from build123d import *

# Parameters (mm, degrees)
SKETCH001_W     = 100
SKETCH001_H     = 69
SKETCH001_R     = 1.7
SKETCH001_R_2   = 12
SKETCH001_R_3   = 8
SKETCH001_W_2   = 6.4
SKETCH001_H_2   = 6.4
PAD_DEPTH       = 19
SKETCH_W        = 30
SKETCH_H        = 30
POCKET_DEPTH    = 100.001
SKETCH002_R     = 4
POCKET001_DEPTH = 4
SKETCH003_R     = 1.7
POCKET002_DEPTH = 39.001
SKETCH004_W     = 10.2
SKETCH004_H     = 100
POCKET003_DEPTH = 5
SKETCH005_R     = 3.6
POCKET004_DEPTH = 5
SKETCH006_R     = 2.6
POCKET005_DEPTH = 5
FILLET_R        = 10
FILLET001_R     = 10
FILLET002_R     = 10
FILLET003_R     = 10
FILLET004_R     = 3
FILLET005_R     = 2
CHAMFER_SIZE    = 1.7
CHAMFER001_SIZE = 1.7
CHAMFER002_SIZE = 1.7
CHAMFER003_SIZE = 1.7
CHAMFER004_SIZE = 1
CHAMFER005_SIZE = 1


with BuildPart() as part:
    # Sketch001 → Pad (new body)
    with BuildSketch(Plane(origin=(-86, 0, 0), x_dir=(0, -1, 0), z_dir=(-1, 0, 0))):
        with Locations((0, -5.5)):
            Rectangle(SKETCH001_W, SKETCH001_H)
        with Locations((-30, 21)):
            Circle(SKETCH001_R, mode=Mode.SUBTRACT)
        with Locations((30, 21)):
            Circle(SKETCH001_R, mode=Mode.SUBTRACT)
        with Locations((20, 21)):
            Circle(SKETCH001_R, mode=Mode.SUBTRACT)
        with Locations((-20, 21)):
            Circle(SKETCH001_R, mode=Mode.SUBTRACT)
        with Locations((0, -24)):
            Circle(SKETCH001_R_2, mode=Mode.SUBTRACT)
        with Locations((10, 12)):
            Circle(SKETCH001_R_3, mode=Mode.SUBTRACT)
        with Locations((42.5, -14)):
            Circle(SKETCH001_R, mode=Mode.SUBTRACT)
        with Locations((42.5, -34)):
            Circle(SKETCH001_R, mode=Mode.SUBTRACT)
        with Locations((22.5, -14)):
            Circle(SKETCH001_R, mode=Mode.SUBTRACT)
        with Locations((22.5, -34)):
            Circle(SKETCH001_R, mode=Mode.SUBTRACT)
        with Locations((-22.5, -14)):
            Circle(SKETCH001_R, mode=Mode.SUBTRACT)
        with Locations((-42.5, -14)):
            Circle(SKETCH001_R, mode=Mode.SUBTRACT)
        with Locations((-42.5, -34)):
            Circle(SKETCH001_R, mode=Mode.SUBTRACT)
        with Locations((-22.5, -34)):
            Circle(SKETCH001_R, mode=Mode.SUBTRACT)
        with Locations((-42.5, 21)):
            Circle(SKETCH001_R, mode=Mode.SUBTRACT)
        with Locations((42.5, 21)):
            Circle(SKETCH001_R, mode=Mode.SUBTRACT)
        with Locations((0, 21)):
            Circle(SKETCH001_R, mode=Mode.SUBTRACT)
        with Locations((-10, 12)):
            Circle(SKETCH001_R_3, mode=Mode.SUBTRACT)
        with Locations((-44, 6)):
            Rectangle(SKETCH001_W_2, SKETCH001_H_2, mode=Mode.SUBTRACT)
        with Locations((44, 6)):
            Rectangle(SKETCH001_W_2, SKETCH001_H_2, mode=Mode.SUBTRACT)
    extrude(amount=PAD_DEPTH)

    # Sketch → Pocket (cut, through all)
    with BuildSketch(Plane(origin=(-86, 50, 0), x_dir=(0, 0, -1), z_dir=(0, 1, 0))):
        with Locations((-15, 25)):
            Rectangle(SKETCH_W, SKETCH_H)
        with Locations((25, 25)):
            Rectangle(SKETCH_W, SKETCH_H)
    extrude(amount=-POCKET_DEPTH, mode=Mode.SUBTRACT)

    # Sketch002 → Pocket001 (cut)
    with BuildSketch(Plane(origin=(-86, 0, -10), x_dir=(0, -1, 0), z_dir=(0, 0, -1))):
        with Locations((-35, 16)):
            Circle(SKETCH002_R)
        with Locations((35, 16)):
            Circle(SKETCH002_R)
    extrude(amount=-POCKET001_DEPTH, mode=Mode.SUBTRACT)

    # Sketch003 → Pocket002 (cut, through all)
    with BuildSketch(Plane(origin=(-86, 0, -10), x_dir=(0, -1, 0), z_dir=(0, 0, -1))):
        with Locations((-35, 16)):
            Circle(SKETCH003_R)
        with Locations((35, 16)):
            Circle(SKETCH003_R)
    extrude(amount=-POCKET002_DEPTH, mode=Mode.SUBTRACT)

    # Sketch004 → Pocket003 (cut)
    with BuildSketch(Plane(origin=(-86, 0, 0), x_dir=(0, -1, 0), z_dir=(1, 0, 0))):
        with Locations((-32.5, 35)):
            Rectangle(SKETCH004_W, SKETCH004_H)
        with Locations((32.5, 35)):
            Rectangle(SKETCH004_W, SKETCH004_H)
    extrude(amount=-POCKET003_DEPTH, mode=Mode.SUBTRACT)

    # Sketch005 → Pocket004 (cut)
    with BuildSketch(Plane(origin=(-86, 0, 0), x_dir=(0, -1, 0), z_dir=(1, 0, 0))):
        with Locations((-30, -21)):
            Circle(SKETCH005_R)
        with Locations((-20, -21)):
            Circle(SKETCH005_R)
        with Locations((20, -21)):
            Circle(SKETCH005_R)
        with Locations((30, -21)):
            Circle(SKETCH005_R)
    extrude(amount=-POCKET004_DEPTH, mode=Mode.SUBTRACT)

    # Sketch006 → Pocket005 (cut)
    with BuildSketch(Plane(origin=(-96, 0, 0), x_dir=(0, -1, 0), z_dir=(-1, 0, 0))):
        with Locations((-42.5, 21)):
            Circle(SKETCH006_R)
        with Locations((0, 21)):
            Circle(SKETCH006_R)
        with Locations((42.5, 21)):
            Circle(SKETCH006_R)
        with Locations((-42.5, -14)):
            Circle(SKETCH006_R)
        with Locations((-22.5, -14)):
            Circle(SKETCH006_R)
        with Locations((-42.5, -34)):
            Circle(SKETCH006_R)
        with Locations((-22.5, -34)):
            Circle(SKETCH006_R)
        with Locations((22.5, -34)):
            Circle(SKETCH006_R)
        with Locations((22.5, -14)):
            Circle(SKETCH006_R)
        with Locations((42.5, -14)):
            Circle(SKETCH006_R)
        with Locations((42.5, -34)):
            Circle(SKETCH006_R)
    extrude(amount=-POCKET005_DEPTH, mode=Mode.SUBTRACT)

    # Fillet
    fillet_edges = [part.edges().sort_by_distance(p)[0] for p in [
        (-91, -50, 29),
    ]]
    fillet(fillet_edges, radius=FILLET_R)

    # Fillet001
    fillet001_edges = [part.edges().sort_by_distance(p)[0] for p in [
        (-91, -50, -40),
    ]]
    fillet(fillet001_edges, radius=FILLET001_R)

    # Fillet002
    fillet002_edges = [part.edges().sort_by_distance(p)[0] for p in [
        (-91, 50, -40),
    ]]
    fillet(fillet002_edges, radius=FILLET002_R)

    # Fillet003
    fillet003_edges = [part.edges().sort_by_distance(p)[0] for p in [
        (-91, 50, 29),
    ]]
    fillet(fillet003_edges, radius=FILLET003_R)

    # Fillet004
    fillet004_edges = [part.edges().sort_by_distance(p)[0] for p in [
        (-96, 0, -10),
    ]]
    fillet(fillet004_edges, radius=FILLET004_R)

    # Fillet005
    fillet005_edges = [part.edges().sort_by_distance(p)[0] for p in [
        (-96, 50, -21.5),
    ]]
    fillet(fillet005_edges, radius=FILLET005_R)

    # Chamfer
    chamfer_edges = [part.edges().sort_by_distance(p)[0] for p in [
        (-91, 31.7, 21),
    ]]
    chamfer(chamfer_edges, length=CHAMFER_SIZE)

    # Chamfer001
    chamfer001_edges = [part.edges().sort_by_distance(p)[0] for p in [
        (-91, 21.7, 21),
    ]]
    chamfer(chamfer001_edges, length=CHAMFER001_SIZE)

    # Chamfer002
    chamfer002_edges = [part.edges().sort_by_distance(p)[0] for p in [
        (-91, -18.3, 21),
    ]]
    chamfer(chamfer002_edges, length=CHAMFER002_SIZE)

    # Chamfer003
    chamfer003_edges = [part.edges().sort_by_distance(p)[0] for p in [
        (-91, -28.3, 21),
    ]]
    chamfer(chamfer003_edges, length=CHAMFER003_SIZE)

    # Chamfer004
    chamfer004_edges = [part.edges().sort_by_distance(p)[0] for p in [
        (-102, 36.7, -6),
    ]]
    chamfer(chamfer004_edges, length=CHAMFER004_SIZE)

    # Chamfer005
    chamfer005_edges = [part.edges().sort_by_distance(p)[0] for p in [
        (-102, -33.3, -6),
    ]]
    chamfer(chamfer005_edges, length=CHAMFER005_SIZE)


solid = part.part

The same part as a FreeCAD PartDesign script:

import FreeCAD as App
import Part
import Sketcher
from FreeCAD import Vector
Q = App.Units.Quantity


def edges_at(feature, points):
    """Names of the edges that pass closest to the given points."""
    edges = feature.Shape.Edges
    near = lambda p: min(range(len(edges)), key=lambda i: edges[i].distToShape(Part.Vertex(*p))[0])
    return sorted({f"Edge{near(p) + 1}" for p in points})

doc = App.newDocument("Part")
params = doc.addObject("Spreadsheet::Sheet", "Params")
for row, (alias, value) in enumerate([
    ("sketch1_diameter", "24 mm"),
    ("sketch1_diameter2", "16 mm"),
    ("sketch1_diameter3", "3.4 mm"),
    ("sketch1_width", "100 mm"),
    ("sketch1_height", "69 mm"),
    ("pad1_length", "19 mm"),
    ("sketch2_width", "30 mm"),
    ("sketch3_diameter", "8 mm"),
    ("pocket2_length", "4 mm"),
    ("sketch4_diameter", "3.4 mm"),
    ("sketch5_height", "100 mm"),
    ("sketch5_width", "10.2 mm"),
    ("pocket4_length", "5 mm"),
    ("sketch6_diameter", "7.2 mm"),
    ("pocket5_length", "5 mm"),
    ("sketch7_diameter", "5.2 mm"),
    ("pocket6_length", "5 mm"),
    ("fillet_radius", "10 mm"),
    ("fillet2_radius", "10 mm"),
    ("fillet3_radius", "10 mm"),
    ("fillet4_radius", "10 mm"),
    ("fillet5_radius", "3 mm"),
    ("fillet6_radius", "2 mm"),
    ("chamfer_size", "1.7 mm"),
    ("chamfer2_size", "1.7 mm"),
    ("chamfer3_size", "1.7 mm"),
    ("chamfer4_size", "1.7 mm"),
    ("chamfer5_size", "1 mm"),
    ("chamfer6_size", "1 mm"),
], start=1):
    params.set(f"A{row}", alias)
    params.set(f"B{row}", "=" + value)
    params.setAlias(f"B{row}", alias)

body = doc.addObject("PartDesign::Body", "Body")

sketch1 = body.newObject("Sketcher::SketchObject", "Sketch")
sketch1.AttachmentSupport = (doc.getObject("YZ_Plane"), [""])
sketch1.MapMode = "FlatFace"
sketch1.AttachmentOffset = App.Placement(Vector(0, 0, -86), App.Rotation())
sketch1.addGeometry([
    Part.LineSegment(Vector(50, 29, 0), Vector(50, -40, 0)),
    Part.LineSegment(Vector(50, -40, 0), Vector(-50, -40, 0)),
    Part.LineSegment(Vector(-50, -40, 0), Vector(-50, 29, 0)),
    Part.LineSegment(Vector(-50, 29, 0), Vector(50, 29, 0)),
    Part.Circle(Vector(42.5, -34, 0), Vector(0, 0, 1), 1.7),
    Part.Circle(Vector(22.5, -34, 0), Vector(0, 0, 1), 1.7),
    Part.Circle(Vector(42.5, -14, 0), Vector(0, 0, 1), 1.7),
    Part.Circle(Vector(22.5, -14, 0), Vector(0, 0, 1), 1.7),
    Part.Circle(Vector(-22.5, -34, 0), Vector(0, 0, 1), 1.7),
    Part.Circle(Vector(0, -24, 0), Vector(0, 0, 1), 12),
    Part.Circle(Vector(-42.5, -34, 0), Vector(0, 0, 1), 1.7),
    Part.Circle(Vector(-22.5, -14, 0), Vector(0, 0, 1), 1.7),
    Part.Circle(Vector(-42.5, -14, 0), Vector(0, 0, 1), 1.7),
    Part.LineSegment(Vector(40.8, 2.8, 0), Vector(47.2, 2.8, 0)),
    Part.LineSegment(Vector(47.2, 2.8, 0), Vector(47.2, 9.2, 0)),
    Part.LineSegment(Vector(47.2, 9.2, 0), Vector(40.8, 9.2, 0)),
    Part.LineSegment(Vector(40.8, 9.2, 0), Vector(40.8, 2.8, 0)),
    Part.Circle(Vector(42.5, 21, 0), Vector(0, 0, 1), 1.7),
    Part.Circle(Vector(30, 21, 0), Vector(0, 0, 1), 1.7),
    Part.Circle(Vector(10, 12, 0), Vector(0, 0, 1), 8),
    Part.Circle(Vector(20, 21, 0), Vector(0, 0, 1), 1.7),
    Part.LineSegment(Vector(-47.2, 2.8, 0), Vector(-40.8, 2.8, 0)),
    Part.LineSegment(Vector(-40.8, 2.8, 0), Vector(-40.8, 9.2, 0)),
    Part.LineSegment(Vector(-40.8, 9.2, 0), Vector(-47.2, 9.2, 0)),
    Part.LineSegment(Vector(-47.2, 9.2, 0), Vector(-47.2, 2.8, 0)),
    Part.Circle(Vector(-10, 12, 0), Vector(0, 0, 1), 8),
    Part.Circle(Vector(0, 21, 0), Vector(0, 0, 1), 1.7),
    Part.Circle(Vector(-20, 21, 0), Vector(0, 0, 1), 1.7),
    Part.Circle(Vector(-30, 21, 0), Vector(0, 0, 1), 1.7),
    Part.Circle(Vector(-42.5, 21, 0), Vector(0, 0, 1), 1.7),
], False)
sketch1.addConstraint([
    Sketcher.Constraint("Coincident", 0, 2, 1, 1),
    Sketcher.Constraint("Coincident", 1, 2, 2, 1),
    Sketcher.Constraint("Coincident", 2, 2, 3, 1),
    Sketcher.Constraint("Coincident", 3, 2, 0, 1),
    Sketcher.Constraint("Coincident", 13, 2, 14, 1),
    Sketcher.Constraint("Coincident", 14, 2, 15, 1),
    Sketcher.Constraint("Coincident", 15, 2, 16, 1),
    Sketcher.Constraint("Coincident", 16, 2, 13, 1),
    Sketcher.Constraint("Coincident", 21, 2, 22, 1),
    Sketcher.Constraint("Coincident", 22, 2, 23, 1),
    Sketcher.Constraint("Coincident", 23, 2, 24, 1),
    Sketcher.Constraint("Coincident", 24, 2, 21, 1),
    Sketcher.Constraint("Vertical", 0),
    Sketcher.Constraint("Horizontal", 1),
    Sketcher.Constraint("Vertical", 2),
    Sketcher.Constraint("Horizontal", 3),
    Sketcher.Constraint("Horizontal", 13),
    Sketcher.Constraint("Vertical", 14),
    Sketcher.Constraint("Horizontal", 15),
    Sketcher.Constraint("Vertical", 16),
    Sketcher.Constraint("Horizontal", 21),
    Sketcher.Constraint("Vertical", 22),
    Sketcher.Constraint("Horizontal", 23),
    Sketcher.Constraint("Vertical", 24),
    Sketcher.Constraint("Equal", 4, 5),
    Sketcher.Constraint("Equal", 5, 6),
    Sketcher.Constraint("Equal", 6, 7),
    Sketcher.Constraint("Equal", 7, 8),
    Sketcher.Constraint("Equal", 8, 10),
    Sketcher.Constraint("Equal", 10, 11),
    Sketcher.Constraint("Equal", 11, 12),
    Sketcher.Constraint("Equal", 12, 17),
    Sketcher.Constraint("Equal", 17, 18),
    Sketcher.Constraint("Equal", 18, 20),
    Sketcher.Constraint("Equal", 19, 25),
    Sketcher.Constraint("Equal", 20, 26),
    Sketcher.Constraint("Equal", 26, 27),
    Sketcher.Constraint("Equal", 27, 28),
    Sketcher.Constraint("Equal", 28, 29),
    Sketcher.Constraint("Symmetric", 5, 3, 8, 3, -2),
    Sketcher.Constraint("Symmetric", 4, 3, 10, 3, -2),
    Sketcher.Constraint("Symmetric", 7, 3, 11, 3, -2),
    Sketcher.Constraint("Symmetric", 6, 3, 12, 3, -2),
    Sketcher.Constraint("Symmetric", 19, 3, 25, 3, -2),
    Sketcher.Constraint("Symmetric", 20, 3, 27, 3, -2),
    Sketcher.Constraint("Symmetric", 18, 3, 28, 3, -2),
    Sketcher.Constraint("Symmetric", 17, 3, 29, 3, -2),
    Sketcher.Constraint("Symmetric", 16, 2, 21, 2, -2),
    Sketcher.Constraint("Symmetric", 14, 2, 23, 2, -2),
    Sketcher.Constraint("PointOnObject", 9, 3, -2),
    Sketcher.Constraint("PointOnObject", 26, 3, -2),
    Sketcher.Constraint("Horizontal", 4, 3, 5, 3),
    Sketcher.Constraint("Horizontal", 6, 3, 7, 3),
    Sketcher.Constraint("Horizontal", 17, 3, 18, 3),
    Sketcher.Constraint("Horizontal", 18, 3, 20, 3),
    Sketcher.Constraint("Horizontal", 20, 3, 26, 3),
    Sketcher.Constraint("Vertical", 4, 3, 6, 3),
    Sketcher.Constraint("Vertical", 5, 3, 7, 3),
    Sketcher.Constraint("Vertical", 6, 3, 17, 3),
    Sketcher.Constraint("Equal", 23, 14),
    Sketcher.Constraint("Diameter", 9, Q("24 mm")),
    Sketcher.Constraint("Diameter", 19, Q("16 mm")),
    Sketcher.Constraint("Diameter", 4, Q("3.4 mm")),
    Sketcher.Constraint("DistanceX", 1, 2, 1, 1, Q("100 mm")),
    Sketcher.Constraint("DistanceY", 0, 2, 0, 1, Q("69 mm")),
    Sketcher.Constraint("DistanceX", 13, 1, 13, 2, Q("6.4 mm")),
    Sketcher.Constraint("DistanceY", 4, 3, -1, 1, Q("34 mm")),
    Sketcher.Constraint("DistanceY", 6, 3, -1, 1, Q("14 mm")),
    Sketcher.Constraint("DistanceY", 9, 3, -1, 1, Q("24 mm")),
    Sketcher.Constraint("DistanceY", -1, 1, 17, 3, Q("21 mm")),
    Sketcher.Constraint("DistanceX", -1, 1, 18, 3, Q("30 mm")),
    Sketcher.Constraint("DistanceX", -1, 1, 19, 3, Q("10 mm")),
    Sketcher.Constraint("DistanceY", -1, 1, 19, 3, Q("12 mm")),
    Sketcher.Constraint("DistanceX", -1, 1, 20, 3, Q("20 mm")),
    Sketcher.Constraint("DistanceX", -1, 1, 0, 2, Q("50 mm")),
    Sketcher.Constraint("DistanceY", 0, 2, -1, 1, Q("40 mm")),
    Sketcher.Constraint("DistanceX", 5, 3, 4, 3, Q("20 mm")),
    Sketcher.Constraint("DistanceX", 8, 3, 5, 3, Q("45 mm")),
    Sketcher.Constraint("DistanceX", -1, 1, 13, 2, Q("47.2 mm")),
    Sketcher.Constraint("DistanceY", -1, 1, 13, 2, Q("2.8 mm")),
])
sketch1.setExpression("Constraints[60]", "Params.sketch1_diameter")
sketch1.setExpression("Constraints[61]", "Params.sketch1_diameter2")
sketch1.setExpression("Constraints[62]", "Params.sketch1_diameter3")
sketch1.setExpression("Constraints[63]", "Params.sketch1_width")
sketch1.setExpression("Constraints[64]", "Params.sketch1_height")
pad1 = body.newObject("PartDesign::Pad", "Pad")
pad1.Profile = sketch1
pad1.setExpression("Length", "Params.pad1_length")
pad1.Reversed = True

sketch2 = body.newObject("Sketcher::SketchObject", "Sketch001")
sketch2.AttachmentSupport = (doc.getObject("XZ_Plane"), [""])
sketch2.MapMode = "FlatFace"
sketch2.AttachmentOffset = App.Placement(Vector(0, 0, -50), App.Rotation())
sketch2.addGeometry([
    Part.LineSegment(Vector(-126, 30, 0), Vector(-96, 30, 0)),
    Part.LineSegment(Vector(-96, 30, 0), Vector(-96, 0, 0)),
    Part.LineSegment(Vector(-96, 0, 0), Vector(-126, 0, 0)),
    Part.LineSegment(Vector(-126, 0, 0), Vector(-126, 30, 0)),
    Part.LineSegment(Vector(-126, -10, 0), Vector(-96, -10, 0)),
    Part.LineSegment(Vector(-96, -10, 0), Vector(-96, -40, 0)),
    Part.LineSegment(Vector(-96, -40, 0), Vector(-126, -40, 0)),
    Part.LineSegment(Vector(-126, -40, 0), Vector(-126, -10, 0)),
], False)
sketch2.addConstraint([
    Sketcher.Constraint("Coincident", 0, 2, 1, 1),
    Sketcher.Constraint("Coincident", 1, 2, 2, 1),
    Sketcher.Constraint("Coincident", 2, 2, 3, 1),
    Sketcher.Constraint("Coincident", 3, 2, 0, 1),
    Sketcher.Constraint("Coincident", 4, 2, 5, 1),
    Sketcher.Constraint("Coincident", 5, 2, 6, 1),
    Sketcher.Constraint("Coincident", 6, 2, 7, 1),
    Sketcher.Constraint("Coincident", 7, 2, 4, 1),
    Sketcher.Constraint("Horizontal", 0),
    Sketcher.Constraint("Vertical", 1),
    Sketcher.Constraint("Horizontal", 2),
    Sketcher.Constraint("Vertical", 3),
    Sketcher.Constraint("Horizontal", 4),
    Sketcher.Constraint("Vertical", 5),
    Sketcher.Constraint("Horizontal", 6),
    Sketcher.Constraint("Vertical", 7),
    Sketcher.Constraint("PointOnObject", 1, 2, -1),
    Sketcher.Constraint("Vertical", 1, 2, 4, 2),
    Sketcher.Constraint("Vertical", 3, 2, 6, 2),
    Sketcher.Constraint("Equal", 6, 1),
    Sketcher.Constraint("Equal", 3, 5),
    Sketcher.Constraint("DistanceX", 0, 1, 0, 2, Q("30 mm")),
    Sketcher.Constraint("DistanceX", 0, 2, -1, 1, Q("96 mm")),
    Sketcher.Constraint("DistanceY", 4, 2, -1, 1, Q("10 mm")),
])
sketch2.setExpression("Constraints[21]", "Params.sketch2_width")
pocket1 = body.newObject("PartDesign::Pocket", "Pocket")
pocket1.Profile = sketch2
pocket1.Type = "ThroughAll"
pocket1.Reversed = True

sketch3 = body.newObject("Sketcher::SketchObject", "Sketch002")
sketch3.AttachmentSupport = (doc.getObject("XY_Plane"), [""])
sketch3.MapMode = "FlatFace"
sketch3.AttachmentOffset = App.Placement(Vector(0, 0, -10), App.Rotation())
sketch3.addGeometry([
    Part.Circle(Vector(-102, 35, 0), Vector(0, 0, 1), 4),
    Part.Circle(Vector(-102, -35, 0), Vector(0, 0, 1), 4),
], False)
sketch3.addConstraint([
    Sketcher.Constraint("Equal", 0, 1),
    Sketcher.Constraint("Symmetric", 0, 3, 1, 3, -1),
    Sketcher.Constraint("Diameter", 0, Q("8 mm")),
    Sketcher.Constraint("DistanceX", 0, 3, -1, 1, Q("102 mm")),
    Sketcher.Constraint("DistanceY", -1, 1, 0, 3, Q("35 mm")),
])
sketch3.setExpression("Constraints[2]", "Params.sketch3_diameter")
pocket2 = body.newObject("PartDesign::Pocket", "Pocket001")
pocket2.Profile = sketch3
pocket2.setExpression("Length", "Params.pocket2_length")
pocket2.Reversed = True

sketch4 = body.newObject("Sketcher::SketchObject", "Sketch003")
sketch4.AttachmentSupport = (doc.getObject("XY_Plane"), [""])
sketch4.MapMode = "FlatFace"
sketch4.AttachmentOffset = App.Placement(Vector(0, 0, -10), App.Rotation())
sketch4.addGeometry([
    Part.Circle(Vector(-102, 35, 0), Vector(0, 0, 1), 1.7),
    Part.Circle(Vector(-102, -35, 0), Vector(0, 0, 1), 1.7),
], False)
sketch4.addConstraint([
    Sketcher.Constraint("Equal", 0, 1),
    Sketcher.Constraint("Symmetric", 0, 3, 1, 3, -1),
    Sketcher.Constraint("Diameter", 0, Q("3.4 mm")),
    Sketcher.Constraint("DistanceX", 0, 3, -1, 1, Q("102 mm")),
    Sketcher.Constraint("DistanceY", -1, 1, 0, 3, Q("35 mm")),
])
sketch4.setExpression("Constraints[2]", "Params.sketch4_diameter")
pocket3 = body.newObject("PartDesign::Pocket", "Pocket002")
pocket3.Profile = sketch4
pocket3.Type = "ThroughAll"
pocket3.Reversed = True

sketch5 = body.newObject("Sketcher::SketchObject", "Sketch004")
sketch5.AttachmentSupport = (doc.getObject("YZ_Plane"), [""])
sketch5.MapMode = "FlatFace"
sketch5.AttachmentOffset = App.Placement(Vector(0, 0, -86), App.Rotation())
sketch5.addGeometry([
    Part.LineSegment(Vector(38, -85, 0), Vector(38, 15, 0)),
    Part.LineSegment(Vector(38, 15, 0), Vector(27, 15, 0)),
    Part.LineSegment(Vector(27, 15, 0), Vector(27, -85, 0)),
    Part.LineSegment(Vector(27, -85, 0), Vector(38, -85, 0)),
    Part.LineSegment(Vector(-27, -85, 0), Vector(-27, 15, 0)),
    Part.LineSegment(Vector(-27, 15, 0), Vector(-38, 15, 0)),
    Part.LineSegment(Vector(-38, 15, 0), Vector(-38, -85, 0)),
    Part.LineSegment(Vector(-38, -85, 0), Vector(-27, -85, 0)),
], False)
sketch5.addConstraint([
    Sketcher.Constraint("Coincident", 0, 2, 1, 1),
    Sketcher.Constraint("Coincident", 1, 2, 2, 1),
    Sketcher.Constraint("Coincident", 2, 2, 3, 1),
    Sketcher.Constraint("Coincident", 3, 2, 0, 1),
    Sketcher.Constraint("Coincident", 4, 2, 5, 1),
    Sketcher.Constraint("Coincident", 5, 2, 6, 1),
    Sketcher.Constraint("Coincident", 6, 2, 7, 1),
    Sketcher.Constraint("Coincident", 7, 2, 4, 1),
    Sketcher.Constraint("Vertical", 0),
    Sketcher.Constraint("Horizontal", 1),
    Sketcher.Constraint("Vertical", 2),
    Sketcher.Constraint("Horizontal", 3),
    Sketcher.Constraint("Vertical", 4),
    Sketcher.Constraint("Horizontal", 5),
    Sketcher.Constraint("Vertical", 6),
    Sketcher.Constraint("Horizontal", 7),
    Sketcher.Constraint("Symmetric", 1, 2, 4, 2, -2),
    Sketcher.Constraint("Symmetric", 3, 2, 6, 2, -2),
    Sketcher.Constraint("DistanceY", 0, 1, 0, 2, Q("100 mm")),
    Sketcher.Constraint("DistanceX", 1, 2, 1, 1, Q("10.2 mm")),
    Sketcher.Constraint("DistanceY", -1, 1, 0, 2, Q("15 mm")),
    Sketcher.Constraint("DistanceX", 4, 2, 0, 2, Q("65 mm")),
])
sketch5.setExpression("Constraints[18]", "Params.sketch5_height")
sketch5.setExpression("Constraints[19]", "Params.sketch5_width")
pocket4 = body.newObject("PartDesign::Pocket", "Pocket003")
pocket4.Profile = sketch5
pocket4.setExpression("Length", "Params.pocket4_length")

sketch6 = body.newObject("Sketcher::SketchObject", "Sketch005")
sketch6.AttachmentSupport = (doc.getObject("YZ_Plane"), [""])
sketch6.MapMode = "FlatFace"
sketch6.AttachmentOffset = App.Placement(Vector(0, 0, -86), App.Rotation())
sketch6.addGeometry([
    Part.Circle(Vector(30, 21, 0), Vector(0, 0, 1), 3.6),
    Part.Circle(Vector(20, 21, 0), Vector(0, 0, 1), 3.6),
    Part.Circle(Vector(-20, 21, 0), Vector(0, 0, 1), 3.6),
    Part.Circle(Vector(-30, 21, 0), Vector(0, 0, 1), 3.6),
], False)
sketch6.addConstraint([
    Sketcher.Constraint("Equal", 0, 1),
    Sketcher.Constraint("Equal", 1, 2),
    Sketcher.Constraint("Equal", 2, 3),
    Sketcher.Constraint("Symmetric", 1, 3, 2, 3, -2),
    Sketcher.Constraint("Symmetric", 0, 3, 3, 3, -2),
    Sketcher.Constraint("Horizontal", 0, 3, 1, 3),
    Sketcher.Constraint("Diameter", 0, Q("7.2 mm")),
    Sketcher.Constraint("DistanceX", -1, 1, 0, 3, Q("30 mm")),
    Sketcher.Constraint("DistanceY", -1, 1, 0, 3, Q("21 mm")),
    Sketcher.Constraint("DistanceX", -1, 1, 1, 3, Q("20 mm")),
])
sketch6.setExpression("Constraints[6]", "Params.sketch6_diameter")
pocket5 = body.newObject("PartDesign::Pocket", "Pocket004")
pocket5.Profile = sketch6
pocket5.setExpression("Length", "Params.pocket5_length")

sketch7 = body.newObject("Sketcher::SketchObject", "Sketch006")
sketch7.AttachmentSupport = (doc.getObject("YZ_Plane"), [""])
sketch7.MapMode = "FlatFace"
sketch7.AttachmentOffset = App.Placement(Vector(0, 0, -96), App.Rotation())
sketch7.addGeometry([
    Part.Circle(Vector(42.5, 21, 0), Vector(0, 0, 1), 2.6),
    Part.Circle(Vector(0, 21, 0), Vector(0, 0, 1), 2.6),
    Part.Circle(Vector(-42.5, 21, 0), Vector(0, 0, 1), 2.6),
    Part.Circle(Vector(42.5, -14, 0), Vector(0, 0, 1), 2.6),
    Part.Circle(Vector(22.5, -14, 0), Vector(0, 0, 1), 2.6),
    Part.Circle(Vector(42.5, -34, 0), Vector(0, 0, 1), 2.6),
    Part.Circle(Vector(22.5, -34, 0), Vector(0, 0, 1), 2.6),
    Part.Circle(Vector(-22.5, -34, 0), Vector(0, 0, 1), 2.6),
    Part.Circle(Vector(-22.5, -14, 0), Vector(0, 0, 1), 2.6),
    Part.Circle(Vector(-42.5, -14, 0), Vector(0, 0, 1), 2.6),
    Part.Circle(Vector(-42.5, -34, 0), Vector(0, 0, 1), 2.6),
], False)
sketch7.addConstraint([
    Sketcher.Constraint("Equal", 0, 1),
    Sketcher.Constraint("Equal", 1, 2),
    Sketcher.Constraint("Equal", 2, 3),
    Sketcher.Constraint("Equal", 3, 4),
    Sketcher.Constraint("Equal", 4, 5),
    Sketcher.Constraint("Equal", 5, 6),
    Sketcher.Constraint("Equal", 6, 7),
    Sketcher.Constraint("Equal", 7, 8),
    Sketcher.Constraint("Equal", 8, 9),
    Sketcher.Constraint("Equal", 9, 10),
    Sketcher.Constraint("Symmetric", 0, 3, 2, 3, -2),
    Sketcher.Constraint("Symmetric", 6, 3, 7, 3, -2),
    Sketcher.Constraint("Symmetric", 4, 3, 8, 3, -2),
    Sketcher.Constraint("Symmetric", 3, 3, 9, 3, -2),
    Sketcher.Constraint("Symmetric", 5, 3, 10, 3, -2),
    Sketcher.Constraint("PointOnObject", 1, 3, -2),
    Sketcher.Constraint("Horizontal", 0, 3, 1, 3),
    Sketcher.Constraint("Horizontal", 3, 3, 4, 3),
    Sketcher.Constraint("Horizontal", 5, 3, 6, 3),
    Sketcher.Constraint("Vertical", 0, 3, 3, 3),
    Sketcher.Constraint("Vertical", 3, 3, 5, 3),
    Sketcher.Constraint("Vertical", 4, 3, 6, 3),
    Sketcher.Constraint("Diameter", 0, Q("5.2 mm")),
    Sketcher.Constraint("DistanceY", -1, 1, 0, 3, Q("21 mm")),
    Sketcher.Constraint("DistanceY", 3, 3, -1, 1, Q("14 mm")),
    Sketcher.Constraint("DistanceY", 5, 3, -1, 1, Q("34 mm")),
    Sketcher.Constraint("DistanceX", 2, 3, 0, 3, Q("85 mm")),
    Sketcher.Constraint("DistanceX", 4, 3, 3, 3, Q("20 mm")),
])
sketch7.setExpression("Constraints[22]", "Params.sketch7_diameter")
pocket6 = body.newObject("PartDesign::Pocket", "Pocket005")
pocket6.Profile = sketch7
pocket6.setExpression("Length", "Params.pocket6_length")
pocket6.Reversed = True
doc.recompute()

fillet = body.newObject("PartDesign::Fillet", "Fillet")
fillet.Base = (pocket6, edges_at(pocket6, [(-91, -50, 29)]))
fillet.setExpression("Radius", "Params.fillet_radius")
doc.recompute()

fillet2 = body.newObject("PartDesign::Fillet", "Fillet001")
fillet2.Base = (fillet, edges_at(fillet, [(-91, -50, -40)]))
fillet2.setExpression("Radius", "Params.fillet2_radius")
doc.recompute()

fillet3 = body.newObject("PartDesign::Fillet", "Fillet002")
fillet3.Base = (fillet2, edges_at(fillet2, [(-91, 50, -40)]))
fillet3.setExpression("Radius", "Params.fillet3_radius")
doc.recompute()

fillet4 = body.newObject("PartDesign::Fillet", "Fillet003")
fillet4.Base = (fillet3, edges_at(fillet3, [(-91, 50, 29)]))
fillet4.setExpression("Radius", "Params.fillet4_radius")
doc.recompute()

fillet5 = body.newObject("PartDesign::Fillet", "Fillet004")
fillet5.Base = (fillet4, edges_at(fillet4, [(-96, 0, -10)]))
fillet5.setExpression("Radius", "Params.fillet5_radius")
doc.recompute()

fillet6 = body.newObject("PartDesign::Fillet", "Fillet005")
fillet6.Base = (fillet5, edges_at(fillet5, [(-96, 50, -21.5)]))
fillet6.setExpression("Radius", "Params.fillet6_radius")
doc.recompute()

chamfer = body.newObject("PartDesign::Chamfer", "Chamfer")
chamfer.Base = (fillet6, edges_at(fillet6, [(-91, 31.7, 21)]))
chamfer.setExpression("Size", "Params.chamfer_size")
doc.recompute()

chamfer2 = body.newObject("PartDesign::Chamfer", "Chamfer001")
chamfer2.Base = (chamfer, edges_at(chamfer, [(-91, 21.7, 21)]))
chamfer2.setExpression("Size", "Params.chamfer2_size")
doc.recompute()

chamfer3 = body.newObject("PartDesign::Chamfer", "Chamfer002")
chamfer3.Base = (chamfer2, edges_at(chamfer2, [(-91, -18.3, 21)]))
chamfer3.setExpression("Size", "Params.chamfer3_size")
doc.recompute()

chamfer4 = body.newObject("PartDesign::Chamfer", "Chamfer003")
chamfer4.Base = (chamfer3, edges_at(chamfer3, [(-91, -28.3, 21)]))
chamfer4.setExpression("Size", "Params.chamfer4_size")
doc.recompute()

chamfer5 = body.newObject("PartDesign::Chamfer", "Chamfer004")
chamfer5.Base = (chamfer4, edges_at(chamfer4, [(-102, 36.7, -6)]))
chamfer5.setExpression("Size", "Params.chamfer5_size")
doc.recompute()

chamfer6 = body.newObject("PartDesign::Chamfer", "Chamfer005")
chamfer6.Base = (chamfer5, edges_at(chamfer5, [(-102, -33.3, -6)]))
chamfer6.setExpression("Size", "Params.chamfer6_size")

doc.recompute()
